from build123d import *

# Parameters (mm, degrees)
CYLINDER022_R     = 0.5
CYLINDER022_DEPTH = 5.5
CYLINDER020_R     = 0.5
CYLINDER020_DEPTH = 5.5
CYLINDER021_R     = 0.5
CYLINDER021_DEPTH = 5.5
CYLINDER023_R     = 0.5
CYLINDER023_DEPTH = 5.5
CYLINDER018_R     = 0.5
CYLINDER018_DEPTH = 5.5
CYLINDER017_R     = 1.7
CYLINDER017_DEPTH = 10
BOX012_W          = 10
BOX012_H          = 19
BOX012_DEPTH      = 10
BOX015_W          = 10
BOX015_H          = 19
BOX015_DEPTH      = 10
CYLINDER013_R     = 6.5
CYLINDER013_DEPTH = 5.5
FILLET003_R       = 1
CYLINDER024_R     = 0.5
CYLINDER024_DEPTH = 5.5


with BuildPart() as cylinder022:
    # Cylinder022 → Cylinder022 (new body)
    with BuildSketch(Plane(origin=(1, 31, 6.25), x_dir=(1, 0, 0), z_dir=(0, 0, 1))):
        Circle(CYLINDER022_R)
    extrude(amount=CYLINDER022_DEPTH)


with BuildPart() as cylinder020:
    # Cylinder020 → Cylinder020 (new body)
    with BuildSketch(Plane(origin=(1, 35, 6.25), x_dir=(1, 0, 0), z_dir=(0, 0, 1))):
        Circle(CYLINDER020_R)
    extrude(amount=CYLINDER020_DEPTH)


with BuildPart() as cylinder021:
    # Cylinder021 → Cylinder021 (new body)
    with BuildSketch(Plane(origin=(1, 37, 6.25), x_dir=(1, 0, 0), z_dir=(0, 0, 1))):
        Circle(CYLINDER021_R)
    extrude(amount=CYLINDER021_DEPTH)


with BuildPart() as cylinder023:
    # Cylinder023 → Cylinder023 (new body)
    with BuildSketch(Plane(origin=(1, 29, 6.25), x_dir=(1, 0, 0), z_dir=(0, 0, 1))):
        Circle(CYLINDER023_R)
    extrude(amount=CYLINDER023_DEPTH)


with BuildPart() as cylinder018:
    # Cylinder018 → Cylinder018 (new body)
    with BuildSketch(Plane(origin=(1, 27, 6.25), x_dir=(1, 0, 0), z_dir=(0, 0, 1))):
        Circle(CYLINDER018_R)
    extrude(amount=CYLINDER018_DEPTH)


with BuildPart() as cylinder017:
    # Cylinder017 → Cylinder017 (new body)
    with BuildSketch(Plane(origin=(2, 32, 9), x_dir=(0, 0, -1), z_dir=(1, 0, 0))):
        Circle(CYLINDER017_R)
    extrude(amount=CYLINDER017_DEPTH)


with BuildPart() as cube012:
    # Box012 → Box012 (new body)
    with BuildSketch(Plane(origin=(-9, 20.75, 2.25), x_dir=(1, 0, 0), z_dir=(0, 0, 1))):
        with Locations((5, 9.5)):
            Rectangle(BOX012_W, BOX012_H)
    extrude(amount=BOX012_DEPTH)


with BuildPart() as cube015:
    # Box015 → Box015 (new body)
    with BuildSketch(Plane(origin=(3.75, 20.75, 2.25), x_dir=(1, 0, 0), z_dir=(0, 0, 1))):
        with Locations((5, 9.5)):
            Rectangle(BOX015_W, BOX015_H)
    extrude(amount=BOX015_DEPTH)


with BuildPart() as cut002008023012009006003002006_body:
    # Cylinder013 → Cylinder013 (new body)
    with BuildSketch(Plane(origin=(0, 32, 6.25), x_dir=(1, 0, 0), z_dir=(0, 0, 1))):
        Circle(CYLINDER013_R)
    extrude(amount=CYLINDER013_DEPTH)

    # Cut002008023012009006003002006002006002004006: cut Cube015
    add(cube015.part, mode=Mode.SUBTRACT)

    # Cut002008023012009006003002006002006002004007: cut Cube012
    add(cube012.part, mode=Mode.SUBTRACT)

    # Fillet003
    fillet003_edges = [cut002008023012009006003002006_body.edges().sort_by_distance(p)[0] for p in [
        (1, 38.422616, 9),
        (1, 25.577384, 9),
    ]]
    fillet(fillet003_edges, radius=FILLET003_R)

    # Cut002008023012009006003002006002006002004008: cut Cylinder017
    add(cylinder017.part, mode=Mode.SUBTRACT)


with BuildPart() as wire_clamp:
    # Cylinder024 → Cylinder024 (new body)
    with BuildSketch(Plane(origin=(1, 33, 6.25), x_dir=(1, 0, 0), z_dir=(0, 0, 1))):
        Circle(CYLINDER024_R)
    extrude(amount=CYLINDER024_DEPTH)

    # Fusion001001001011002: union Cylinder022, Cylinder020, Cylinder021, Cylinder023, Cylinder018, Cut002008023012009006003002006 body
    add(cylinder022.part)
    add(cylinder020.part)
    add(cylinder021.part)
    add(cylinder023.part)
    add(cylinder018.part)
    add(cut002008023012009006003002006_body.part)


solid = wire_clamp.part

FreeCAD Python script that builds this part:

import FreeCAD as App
import Part
import Sketcher
from FreeCAD import Vector
Q = App.Units.Quantity


def edges_at(feature, points):
    """Names of the edges that pass closest to the given points."""
    edges = feature.Shape.Edges
    near = lambda p: min(range(len(edges)), key=lambda i: edges[i].distToShape(Part.Vertex(*p))[0])
    return sorted({f"Edge{near(p) + 1}" for p in points})

doc = App.newDocument("Part")
body = doc.addObject("PartDesign::Body", "Body")

# Sketch on XY plane
sketch1 = body.newObject("Sketcher::SketchObject", "Sketch")
sketch1.AttachmentSupport = (doc.getObject("XY_Plane"), [""])
sketch1.MapMode = "FlatFace"
sketch1.AttachmentOffset = App.Placement(Vector(0, 0, 6.25), App.Rotation())
sketch1.addGeometry(Part.Circle(Vector(1, 31, 0), Vector(0, 0, 1), 0.5), False)
sketch1.addConstraint([
    Sketcher.Constraint("Diameter", 0, Q("1 mm")),
    Sketcher.Constraint("DistanceX", -1, 1, 0, 3, Q("1 mm")),
    Sketcher.Constraint("DistanceY", -1, 1, 0, 3, Q("31 mm")),
])
pad1 = body.newObject("PartDesign::Pad", "Pad")
pad1.Profile = sketch1
pad1.Length = 5.5
body2 = doc.addObject("PartDesign::Body", "Body001")

# Sketch on XY plane
sketch2 = body2.newObject("Sketcher::SketchObject", "Sketch001")
sketch2.AttachmentSupport = (doc.getObject("XY_Plane001"), [""])
sketch2.MapMode = "FlatFace"
sketch2.AttachmentOffset = App.Placement(Vector(0, 0, 6.25), App.Rotation())
sketch2.addGeometry(Part.Circle(Vector(1, 35, 0), Vector(0, 0, 1), 0.5), False)
sketch2.addConstraint([
    Sketcher.Constraint("Diameter", 0, Q("1 mm")),
    Sketcher.Constraint("DistanceX", -1, 1, 0, 3, Q("1 mm")),
    Sketcher.Constraint("DistanceY", -1, 1, 0, 3, Q("35 mm")),
])
pad2 = body2.newObject("PartDesign::Pad", "Pad001")
pad2.Profile = sketch2
pad2.Length = 5.5
body3 = doc.addObject("PartDesign::Body", "Body002")

# Sketch on XY plane
sketch3 = body3.newObject("Sketcher::SketchObject", "Sketch002")
sketch3.AttachmentSupport = (doc.getObject("XY_Plane002"), [""])
sketch3.MapMode = "FlatFace"
sketch3.AttachmentOffset = App.Placement(Vector(0, 0, 6.25), App.Rotation())
sketch3.addGeometry(Part.Circle(Vector(1, 37, 0), Vector(0, 0, 1), 0.5), False)
sketch3.addConstraint([
    Sketcher.Constraint("Diameter", 0, Q("1 mm")),
    Sketcher.Constraint("DistanceX", -1, 1, 0, 3, Q("1 mm")),
    Sketcher.Constraint("DistanceY", -1, 1, 0, 3, Q("37 mm")),
])
pad3 = body3.newObject("PartDesign::Pad", "Pad002")
pad3.Profile = sketch3
pad3.Length = 5.5
body4 = doc.addObject("PartDesign::Body", "Body003")

# Sketch on XY plane
sketch4 = body4.newObject("Sketcher::SketchObject", "Sketch003")
sketch4.AttachmentSupport = (doc.getObject("XY_Plane003"), [""])
sketch4.MapMode = "FlatFace"
sketch4.AttachmentOffset = App.Placement(Vector(0, 0, 6.25), App.Rotation())
sketch4.addGeometry(Part.Circle(Vector(1, 29, 0), Vector(0, 0, 1), 0.5), False)
sketch4.addConstraint([
    Sketcher.Constraint("Diameter", 0, Q("1 mm")),
    Sketcher.Constraint("DistanceX", -1, 1, 0, 3, Q("1 mm")),
    Sketcher.Constraint("DistanceY", -1, 1, 0, 3, Q("29 mm")),
])
pad4 = body4.newObject("PartDesign::Pad", "Pad003")
pad4.Profile = sketch4
pad4.Length = 5.5
body5 = doc.addObject("PartDesign::Body", "Body004")

# Sketch on XY plane
sketch5 = body5.newObject("Sketcher::SketchObject", "Sketch004")
sketch5.AttachmentSupport = (doc.getObject("XY_Plane004"), [""])
sketch5.MapMode = "FlatFace"
sketch5.AttachmentOffset = App.Placement(Vector(0, 0, 6.25), App.Rotation())
sketch5.addGeometry(Part.Circle(Vector(1, 27, 0), Vector(0, 0, 1), 0.5), False)
sketch5.addConstraint([
    Sketcher.Constraint("Diameter", 0, Q("1 mm")),
    Sketcher.Constraint("DistanceX", -1, 1, 0, 3, Q("1 mm")),
    Sketcher.Constraint("DistanceY", -1, 1, 0, 3, Q("27 mm")),
])
pad5 = body5.newObject("PartDesign::Pad", "Pad004")
pad5.Profile = sketch5
pad5.Length = 5.5
body6 = doc.addObject("PartDesign::Body", "Body005")

# Sketch on YZ plane
sketch6 = body6.newObject("Sketcher::SketchObject", "Sketch005")
sketch6.AttachmentSupport = (doc.getObject("YZ_Plane005"), [""])
sketch6.MapMode = "FlatFace"
sketch6.AttachmentOffset = App.Placement(Vector(0, 0, 2), App.Rotation())
sketch6.addGeometry(Part.Circle(Vector(32, 9, 0), Vector(0, 0, 1), 1.7), False)
sketch6.addConstraint([
    Sketcher.Constraint("Diameter", 0, Q("3.4 mm")),
    Sketcher.Constraint("DistanceX", -1, 1, 0, 3, Q("32 mm")),
    Sketcher.Constraint("DistanceY", -1, 1, 0, 3, Q("9 mm")),
])
pad6 = body6.newObject("PartDesign::Pad", "Pad005")
pad6.Profile = sketch6
pad6.Length = 10
body7 = doc.addObject("PartDesign::Body", "Body006")

# Sketch on XY plane
sketch7 = body7.newObject("Sketcher::SketchObject", "Sketch006")
sketch7.AttachmentSupport = (doc.getObject("XY_Plane006"), [""])
sketch7.MapMode = "FlatFace"
sketch7.AttachmentOffset = App.Placement(Vector(0, 0, 2.25), App.Rotation())
sketch7.addGeometry([
    Part.LineSegment(Vector(-9, 39.75, 0), Vector(-9, 20.75, 0)),
    Part.LineSegment(Vector(-9, 20.75, 0), Vector(1, 20.75, 0)),
    Part.LineSegment(Vector(1, 20.75, 0), Vector(1, 39.75, 0)),
    Part.LineSegment(Vector(1, 39.75, 0), Vector(-9, 39.75, 0)),
], False)
sketch7.addConstraint([
    Sketcher.Constraint("Coincident", 0, 2, 1, 1),
    Sketcher.Constraint("Coincident", 1, 2, 2, 1),
    Sketcher.Constraint("Coincident", 2, 2, 3, 1),
    Sketcher.Constraint("Coincident", 3, 2, 0, 1),
    Sketcher.Constraint("Vertical", 0),
    Sketcher.Constraint("Horizontal", 1),
    Sketcher.Constraint("Vertical", 2),
    Sketcher.Constraint("Horizontal", 3),
    Sketcher.Constraint("DistanceX", 1, 1, 1, 2, Q("10 mm")),
    Sketcher.Constraint("DistanceY", 0, 2, 0, 1, Q("19 mm")),
    Sketcher.Constraint("DistanceX", 0, 2, -1, 1, Q("9 mm")),
    Sketcher.Constraint("DistanceY", -1, 1, 0, 2, Q("20.75 mm")),
])
pad7 = body7.newObject("PartDesign::Pad", "Pad006")
pad7.Profile = sketch7
pad7.Length = 10
body8 = doc.addObject("PartDesign::Body", "Body007")

# Sketch on XY plane
sketch8 = body8.newObject("Sketcher::SketchObject", "Sketch007")
sketch8.AttachmentSupport = (doc.getObject("XY_Plane007"), [""])
sketch8.MapMode = "FlatFace"
sketch8.AttachmentOffset = App.Placement(Vector(0, 0, 2.25), App.Rotation())
sketch8.addGeometry([
    Part.LineSegment(Vector(3.75, 39.75, 0), Vector(3.75, 20.75, 0)),
    Part.LineSegment(Vector(3.75, 20.75, 0), Vector(13.75, 20.75, 0)),
    Part.LineSegment(Vector(13.75, 20.75, 0), Vector(13.75, 39.75, 0)),
    Part.LineSegment(Vector(13.75, 39.75, 0), Vector(3.75, 39.75, 0)),
], False)
sketch8.addConstraint([
    Sketcher.Constraint("Coincident", 0, 2, 1, 1),
    Sketcher.Constraint("Coincident", 1, 2, 2, 1),
    Sketcher.Constraint("Coincident", 2, 2, 3, 1),
    Sketcher.Constraint("Coincident", 3, 2, 0, 1),
    Sketcher.Constraint("Vertical", 0),
    Sketcher.Constraint("Horizontal", 1),
    Sketcher.Constraint("Vertical", 2),
    Sketcher.Constraint("Horizontal", 3),
    Sketcher.Constraint("DistanceX", 1, 1, 1, 2, Q("10 mm")),
    Sketcher.Constraint("DistanceY", 0, 2, 0, 1, Q("19 mm")),
    Sketcher.Constraint("DistanceX", -1, 1, 0, 2, Q("3.75 mm")),
    Sketcher.Constraint("DistanceY", -1, 1, 0, 2, Q("20.75 mm")),
])
pad8 = body8.newObject("PartDesign::Pad", "Pad007")
pad8.Profile = sketch8
pad8.Length = 10
body9 = doc.addObject("PartDesign::Body", "Body008")

# Sketch on XY plane
sketch9 = body9.newObject("Sketcher::SketchObject", "Sketch008")
sketch9.AttachmentSupport = (doc.getObject("XY_Plane008"), [""])
sketch9.MapMode = "FlatFace"
sketch9.AttachmentOffset = App.Placement(Vector(0, 0, 6.25), App.Rotation())
sketch9.addGeometry(Part.Circle(Vector(0, 32, 0), Vector(0, 0, 1), 6.5), False)
sketch9.addConstraint([
    Sketcher.Constraint("PointOnObject", 0, 3, -2),
    Sketcher.Constraint("Diameter", 0, Q("13 mm")),
    Sketcher.Constraint("DistanceY", -1, 1, 0, 3, Q("32 mm")),
])
pad9 = body9.newObject("PartDesign::Pad", "Pad008")
pad9.Profile = sketch9
pad9.Length = 5.5
doc.recompute()

boolean = body9.newObject("PartDesign::Boolean", "Boolean")
boolean.Type = "Cut"
boolean.addObjects([body8])
doc.recompute()

boolean2 = body9.newObject("PartDesign::Boolean", "Boolean001")
boolean2.Type = "Cut"
boolean2.addObjects([body7])
doc.recompute()

fillet = body9.newObject("PartDesign::Fillet", "Fillet")
fillet.Base = (boolean2, edges_at(boolean2, [(1, 38.423, 9), (1, 25.577, 9)]))
fillet.Radius = 1
doc.recompute()

boolean3 = body9.newObject("PartDesign::Boolean", "Boolean002")
boolean3.Type = "Cut"
boolean3.addObjects([body6])
body10 = doc.addObject("PartDesign::Body", "Body009")
body10.AllowCompound = True

# Sketch on XY plane
sketch10 = body10.newObject("Sketcher::SketchObject", "Sketch009")
sketch10.AttachmentSupport = (doc.getObject("XY_Plane009"), [""])
sketch10.MapMode = "FlatFace"
sketch10.AttachmentOffset = App.Placement(Vector(0, 0, 6.25), App.Rotation())
sketch10.addGeometry(Part.Circle(Vector(1, 33, 0), Vector(0, 0, 1), 0.5), False)
sketch10.addConstraint([
    Sketcher.Constraint("Diameter", 0, Q("1 mm")),
    Sketcher.Constraint("DistanceX", -1, 1, 0, 3, Q("1 mm")),
    Sketcher.Constraint("DistanceY", -1, 1, 0, 3, Q("33 mm")),
])
pad10 = body10.newObject("PartDesign::Pad", "Pad009")
pad10.Profile = sketch10
pad10.Length = 5.5
doc.recompute()

boolean4 = body10.newObject("PartDesign::Boolean", "Boolean003")
boolean4.Type = "Fuse"
boolean4.addObjects([body])
doc.recompute()

boolean5 = body10.newObject("PartDesign::Boolean", "Boolean004")
boolean5.Type = "Fuse"
boolean5.addObjects([body2])
doc.recompute()

boolean6 = body10.newObject("PartDesign::Boolean", "Boolean005")
boolean6.Type = "Fuse"
boolean6.addObjects([body3])
doc.recompute()

boolean7 = body10.newObject("PartDesign::Boolean", "Boolean006")
boolean7.Type = "Fuse"
boolean7.addObjects([body4])
doc.recompute()

boolean8 = body10.newObject("PartDesign::Boolean", "Boolean007")
boolean8.Type = "Fuse"
boolean8.addObjects([body5])
doc.recompute()

boolean9 = body10.newObject("PartDesign::Boolean", "Boolean008")
boolean9.Type = "Fuse"
boolean9.addObjects([body9])

doc.recompute()
